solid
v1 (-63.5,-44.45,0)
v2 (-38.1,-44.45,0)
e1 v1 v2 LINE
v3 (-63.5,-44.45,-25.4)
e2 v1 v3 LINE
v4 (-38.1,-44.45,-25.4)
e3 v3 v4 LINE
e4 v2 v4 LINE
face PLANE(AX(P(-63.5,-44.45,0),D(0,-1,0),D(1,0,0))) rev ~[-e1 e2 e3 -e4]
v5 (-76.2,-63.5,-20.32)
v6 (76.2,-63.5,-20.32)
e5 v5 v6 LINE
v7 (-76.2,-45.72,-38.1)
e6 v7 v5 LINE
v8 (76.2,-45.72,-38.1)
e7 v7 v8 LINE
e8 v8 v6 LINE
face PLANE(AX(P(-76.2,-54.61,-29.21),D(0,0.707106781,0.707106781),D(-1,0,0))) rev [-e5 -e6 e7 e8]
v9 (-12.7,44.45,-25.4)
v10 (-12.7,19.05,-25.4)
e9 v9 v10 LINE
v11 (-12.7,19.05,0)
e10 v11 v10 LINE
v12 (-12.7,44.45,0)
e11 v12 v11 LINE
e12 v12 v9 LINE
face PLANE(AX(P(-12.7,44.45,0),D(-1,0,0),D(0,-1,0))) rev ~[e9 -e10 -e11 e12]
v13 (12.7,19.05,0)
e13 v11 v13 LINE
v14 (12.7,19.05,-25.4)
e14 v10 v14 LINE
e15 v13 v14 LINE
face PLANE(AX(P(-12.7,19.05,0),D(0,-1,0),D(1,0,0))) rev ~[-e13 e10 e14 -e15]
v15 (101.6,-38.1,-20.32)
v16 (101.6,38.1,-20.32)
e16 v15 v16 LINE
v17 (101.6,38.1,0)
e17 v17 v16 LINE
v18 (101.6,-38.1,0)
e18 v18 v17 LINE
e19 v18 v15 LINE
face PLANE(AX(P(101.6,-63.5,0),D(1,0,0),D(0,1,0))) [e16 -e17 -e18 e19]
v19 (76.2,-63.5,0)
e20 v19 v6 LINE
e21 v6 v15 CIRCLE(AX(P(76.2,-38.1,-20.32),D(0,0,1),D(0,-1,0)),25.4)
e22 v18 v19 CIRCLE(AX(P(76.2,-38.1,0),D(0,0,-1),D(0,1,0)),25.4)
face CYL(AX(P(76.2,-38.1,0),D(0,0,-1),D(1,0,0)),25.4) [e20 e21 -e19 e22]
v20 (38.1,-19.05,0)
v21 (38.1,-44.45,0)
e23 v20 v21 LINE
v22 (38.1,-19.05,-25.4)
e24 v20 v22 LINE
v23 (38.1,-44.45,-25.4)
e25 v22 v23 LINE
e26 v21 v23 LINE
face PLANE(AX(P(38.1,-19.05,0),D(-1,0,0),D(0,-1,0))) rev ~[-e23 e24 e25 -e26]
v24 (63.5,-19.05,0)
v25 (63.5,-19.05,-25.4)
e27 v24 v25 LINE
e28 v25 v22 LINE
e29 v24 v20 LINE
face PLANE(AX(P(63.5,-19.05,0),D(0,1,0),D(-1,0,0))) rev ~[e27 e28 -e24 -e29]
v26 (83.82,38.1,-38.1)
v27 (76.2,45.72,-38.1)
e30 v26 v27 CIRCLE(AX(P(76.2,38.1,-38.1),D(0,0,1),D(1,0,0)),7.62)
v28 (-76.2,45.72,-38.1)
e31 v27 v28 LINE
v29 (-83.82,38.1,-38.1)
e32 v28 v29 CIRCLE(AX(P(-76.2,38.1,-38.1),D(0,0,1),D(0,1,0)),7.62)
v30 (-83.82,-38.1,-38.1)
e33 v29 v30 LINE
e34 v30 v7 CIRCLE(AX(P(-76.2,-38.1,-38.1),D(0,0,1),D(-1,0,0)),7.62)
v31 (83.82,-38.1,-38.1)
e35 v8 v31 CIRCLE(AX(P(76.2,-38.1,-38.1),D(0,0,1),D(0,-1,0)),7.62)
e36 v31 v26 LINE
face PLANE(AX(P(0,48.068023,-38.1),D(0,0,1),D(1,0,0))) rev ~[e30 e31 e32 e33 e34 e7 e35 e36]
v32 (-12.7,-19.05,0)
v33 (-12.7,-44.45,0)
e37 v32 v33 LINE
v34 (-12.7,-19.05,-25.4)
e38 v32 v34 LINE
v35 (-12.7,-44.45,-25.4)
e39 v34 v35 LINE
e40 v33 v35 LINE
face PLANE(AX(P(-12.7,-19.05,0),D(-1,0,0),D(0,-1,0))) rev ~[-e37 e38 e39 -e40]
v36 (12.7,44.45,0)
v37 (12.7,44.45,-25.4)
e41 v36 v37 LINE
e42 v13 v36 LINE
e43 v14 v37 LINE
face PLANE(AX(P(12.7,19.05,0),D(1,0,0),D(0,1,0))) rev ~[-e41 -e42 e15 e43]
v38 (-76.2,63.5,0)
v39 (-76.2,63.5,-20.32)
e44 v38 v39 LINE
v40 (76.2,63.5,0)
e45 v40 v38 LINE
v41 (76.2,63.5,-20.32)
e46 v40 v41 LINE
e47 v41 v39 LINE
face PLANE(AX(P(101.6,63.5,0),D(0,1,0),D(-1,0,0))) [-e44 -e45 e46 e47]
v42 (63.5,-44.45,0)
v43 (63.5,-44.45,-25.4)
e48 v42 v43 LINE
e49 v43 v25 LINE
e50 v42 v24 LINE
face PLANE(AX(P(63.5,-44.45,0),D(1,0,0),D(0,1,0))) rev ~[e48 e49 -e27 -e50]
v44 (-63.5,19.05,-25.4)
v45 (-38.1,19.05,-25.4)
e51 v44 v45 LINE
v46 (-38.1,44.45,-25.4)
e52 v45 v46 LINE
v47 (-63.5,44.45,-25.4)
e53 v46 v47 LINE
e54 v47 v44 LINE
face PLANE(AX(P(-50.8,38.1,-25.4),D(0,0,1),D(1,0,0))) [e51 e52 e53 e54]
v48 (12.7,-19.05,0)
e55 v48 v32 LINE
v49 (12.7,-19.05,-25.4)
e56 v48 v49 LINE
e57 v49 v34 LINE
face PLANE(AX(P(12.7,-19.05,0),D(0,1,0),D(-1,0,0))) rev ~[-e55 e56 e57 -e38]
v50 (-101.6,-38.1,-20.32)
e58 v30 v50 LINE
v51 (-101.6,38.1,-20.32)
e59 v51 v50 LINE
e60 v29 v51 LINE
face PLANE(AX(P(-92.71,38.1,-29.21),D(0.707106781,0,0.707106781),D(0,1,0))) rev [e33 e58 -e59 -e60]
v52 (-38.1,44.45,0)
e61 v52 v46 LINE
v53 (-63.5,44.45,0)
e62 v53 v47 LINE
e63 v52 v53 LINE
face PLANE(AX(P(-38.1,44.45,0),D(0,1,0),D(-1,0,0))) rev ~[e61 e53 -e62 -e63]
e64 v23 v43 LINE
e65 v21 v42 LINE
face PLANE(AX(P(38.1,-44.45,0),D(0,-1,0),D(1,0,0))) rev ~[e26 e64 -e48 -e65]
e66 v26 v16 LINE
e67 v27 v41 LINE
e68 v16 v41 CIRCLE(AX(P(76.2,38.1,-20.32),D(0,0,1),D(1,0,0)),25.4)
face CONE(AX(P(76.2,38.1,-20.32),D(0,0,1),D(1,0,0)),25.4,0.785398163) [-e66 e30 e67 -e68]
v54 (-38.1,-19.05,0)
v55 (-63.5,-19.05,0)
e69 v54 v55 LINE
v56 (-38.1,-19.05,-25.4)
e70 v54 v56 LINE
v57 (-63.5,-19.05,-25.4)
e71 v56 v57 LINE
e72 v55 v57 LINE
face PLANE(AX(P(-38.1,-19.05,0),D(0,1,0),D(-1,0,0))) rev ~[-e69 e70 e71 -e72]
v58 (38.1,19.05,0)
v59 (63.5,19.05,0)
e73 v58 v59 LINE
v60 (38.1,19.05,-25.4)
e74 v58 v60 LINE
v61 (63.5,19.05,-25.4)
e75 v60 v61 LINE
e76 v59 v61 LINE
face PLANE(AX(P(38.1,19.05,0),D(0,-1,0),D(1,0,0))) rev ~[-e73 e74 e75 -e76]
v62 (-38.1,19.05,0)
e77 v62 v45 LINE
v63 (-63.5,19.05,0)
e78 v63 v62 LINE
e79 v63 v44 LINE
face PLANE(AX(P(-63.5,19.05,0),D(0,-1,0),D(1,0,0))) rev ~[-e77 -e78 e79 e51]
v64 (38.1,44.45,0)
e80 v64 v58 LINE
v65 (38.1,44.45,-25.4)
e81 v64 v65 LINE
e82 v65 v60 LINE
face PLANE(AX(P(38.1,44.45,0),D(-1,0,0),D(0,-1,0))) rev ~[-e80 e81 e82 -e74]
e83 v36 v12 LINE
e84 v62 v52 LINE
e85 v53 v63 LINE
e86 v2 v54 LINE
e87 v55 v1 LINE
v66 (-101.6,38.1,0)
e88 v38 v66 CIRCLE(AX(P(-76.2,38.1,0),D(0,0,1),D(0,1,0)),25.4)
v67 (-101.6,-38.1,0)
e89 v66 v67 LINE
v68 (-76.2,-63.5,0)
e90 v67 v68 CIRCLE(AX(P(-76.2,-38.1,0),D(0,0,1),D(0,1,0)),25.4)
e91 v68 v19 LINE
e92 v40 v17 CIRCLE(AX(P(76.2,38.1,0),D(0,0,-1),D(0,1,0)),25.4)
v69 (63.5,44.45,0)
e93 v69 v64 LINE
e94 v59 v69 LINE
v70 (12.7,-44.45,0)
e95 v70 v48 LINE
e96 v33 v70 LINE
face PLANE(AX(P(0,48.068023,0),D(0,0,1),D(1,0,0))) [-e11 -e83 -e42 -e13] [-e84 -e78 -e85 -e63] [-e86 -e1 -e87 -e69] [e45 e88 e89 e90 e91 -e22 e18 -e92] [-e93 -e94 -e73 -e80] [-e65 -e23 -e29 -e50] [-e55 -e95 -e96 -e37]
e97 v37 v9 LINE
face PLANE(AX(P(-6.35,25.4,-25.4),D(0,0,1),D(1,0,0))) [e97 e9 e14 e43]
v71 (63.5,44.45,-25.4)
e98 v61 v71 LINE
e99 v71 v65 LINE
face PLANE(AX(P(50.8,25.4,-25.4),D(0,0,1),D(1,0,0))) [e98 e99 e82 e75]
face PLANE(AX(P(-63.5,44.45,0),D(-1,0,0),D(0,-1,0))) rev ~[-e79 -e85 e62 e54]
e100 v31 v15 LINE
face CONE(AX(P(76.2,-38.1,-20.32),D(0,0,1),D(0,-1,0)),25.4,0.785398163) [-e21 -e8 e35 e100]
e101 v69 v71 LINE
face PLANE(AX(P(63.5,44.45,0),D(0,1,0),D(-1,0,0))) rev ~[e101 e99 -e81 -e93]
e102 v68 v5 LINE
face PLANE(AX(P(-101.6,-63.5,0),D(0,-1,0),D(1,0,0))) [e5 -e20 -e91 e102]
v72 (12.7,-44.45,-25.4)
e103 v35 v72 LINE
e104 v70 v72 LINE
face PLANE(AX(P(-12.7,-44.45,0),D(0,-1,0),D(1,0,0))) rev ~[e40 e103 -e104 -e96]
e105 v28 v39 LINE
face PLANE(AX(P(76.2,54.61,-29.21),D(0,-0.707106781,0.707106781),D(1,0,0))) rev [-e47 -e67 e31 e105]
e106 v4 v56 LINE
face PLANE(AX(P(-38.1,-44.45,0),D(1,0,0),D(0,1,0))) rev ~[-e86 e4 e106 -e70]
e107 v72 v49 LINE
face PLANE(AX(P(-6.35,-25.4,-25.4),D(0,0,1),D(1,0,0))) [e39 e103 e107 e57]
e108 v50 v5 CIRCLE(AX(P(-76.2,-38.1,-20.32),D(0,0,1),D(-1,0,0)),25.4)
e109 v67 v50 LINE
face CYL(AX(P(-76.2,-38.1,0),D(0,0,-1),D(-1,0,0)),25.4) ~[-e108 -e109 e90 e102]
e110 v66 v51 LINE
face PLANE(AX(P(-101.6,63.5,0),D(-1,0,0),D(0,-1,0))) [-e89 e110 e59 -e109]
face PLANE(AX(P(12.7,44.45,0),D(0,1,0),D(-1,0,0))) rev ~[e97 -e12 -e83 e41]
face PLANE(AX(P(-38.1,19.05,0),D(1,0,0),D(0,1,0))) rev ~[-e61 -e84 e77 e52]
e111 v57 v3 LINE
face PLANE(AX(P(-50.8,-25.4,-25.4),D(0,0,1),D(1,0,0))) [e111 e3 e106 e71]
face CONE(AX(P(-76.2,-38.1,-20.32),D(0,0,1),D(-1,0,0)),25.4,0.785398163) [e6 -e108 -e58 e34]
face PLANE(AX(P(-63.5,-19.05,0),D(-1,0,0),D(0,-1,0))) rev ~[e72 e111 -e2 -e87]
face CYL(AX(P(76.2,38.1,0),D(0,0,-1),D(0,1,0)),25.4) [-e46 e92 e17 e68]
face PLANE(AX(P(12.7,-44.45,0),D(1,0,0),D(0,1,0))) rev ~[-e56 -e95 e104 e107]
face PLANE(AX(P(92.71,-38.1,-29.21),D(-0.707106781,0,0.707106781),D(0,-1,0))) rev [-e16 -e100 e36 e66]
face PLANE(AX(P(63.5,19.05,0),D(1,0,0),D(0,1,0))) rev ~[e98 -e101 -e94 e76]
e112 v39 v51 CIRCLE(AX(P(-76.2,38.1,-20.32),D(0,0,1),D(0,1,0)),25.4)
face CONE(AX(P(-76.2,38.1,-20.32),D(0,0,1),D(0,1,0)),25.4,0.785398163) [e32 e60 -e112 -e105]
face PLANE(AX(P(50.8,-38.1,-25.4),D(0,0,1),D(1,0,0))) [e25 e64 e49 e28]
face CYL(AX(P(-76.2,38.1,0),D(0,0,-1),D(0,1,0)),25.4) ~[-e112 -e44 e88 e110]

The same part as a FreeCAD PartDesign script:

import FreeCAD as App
import Part
import Sketcher
from FreeCAD import Vector
Q = App.Units.Quantity


def edges_at(feature, points):
    """Names of the edges that pass closest to the given points."""
    edges = feature.Shape.Edges
    near = lambda p: min(range(len(edges)), key=lambda i: edges[i].distToShape(Part.Vertex(*p))[0])
    return sorted({f"Edge{near(p) + 1}" for p in points})


def add_polygon(sketch, points):
    """Adds a closed chain of lines whose ends are joined by coincident constraints."""
    first, n = sketch.GeometryCount, len(points)
    for a, b in zip(points, points[1:] + points[:1]):
        sketch.addGeometry(Part.LineSegment(App.Vector(*a, 0), App.Vector(*b, 0)), False)
    for i in range(n):
        sketch.addConstraint(Sketcher.Constraint("Coincident", first + i, 2, first + (i + 1) % n, 1))

doc = App.newDocument("Part")
body = doc.addObject("PartDesign::Body", "Body")

sketch1 = doc.addObject("Sketcher::SketchObject", "Sketch")
body.addObject(sketch1)
sketch1.AttachmentSupport = (doc.XY_Plane, [""])
sketch1.MapMode = "FlatFace"
add_polygon(sketch1, [(102, 64), (-102, 64), (-102, -64), (102, -64)])
sketch1.addConstraint([
    Sketcher.Constraint("Horizontal", 0),
    Sketcher.Constraint("Vertical", 1),
    Sketcher.Constraint("Horizontal", 2),
    Sketcher.Constraint("Vertical", 3),
    Sketcher.Constraint("Symmetric", 0, 2, 2, 2, -1, 1),
    Sketcher.Constraint("DistanceX", 0, 2, 0, 1, Q("8 in")),
    Sketcher.Constraint("DistanceY", 1, 2, 1, 1, Q("5 in")),
])
pad1 = doc.addObject("PartDesign::Pad", "Pad")
body.addObject(pad1)
pad1.Profile = sketch1
pad1.Length = Q("1.5 in")
pad1.Reversed = True

sketch2 = doc.addObject("Sketcher::SketchObject", "Sketch001")
body.addObject(sketch2)
sketch2.AttachmentSupport = (doc.XY_Plane, [""])
sketch2.MapMode = "FlatFace"
add_polygon(sketch2, [(-64, 44), (-64, 19), (-38, 19), (-38, 44)])
add_polygon(sketch2, [(-64, -19), (-64, -44), (-38, -44), (-38, -19)])
add_polygon(sketch2, [(-13, -19), (-13, -44), (13, -44), (13, -19)])
add_polygon(sketch2, [(-13, 19), (13, 19), (13, 44), (-13, 44)])
add_polygon(sketch2, [(64, -44), (64, -19), (38, -19), (38, -44)])
add_polygon(sketch2, [(64, 19), (64, 44), (38, 44), (38, 19)])
sketch2.addConstraint([
    Sketcher.Constraint("Vertical", 0),
    Sketcher.Constraint("Horizontal", 1),
    Sketcher.Constraint("Vertical", 2),
    Sketcher.Constraint("Horizontal", 3),
    Sketcher.Constraint("Vertical", 4),
    Sketcher.Constraint("Horizontal", 5),
    Sketcher.Constraint("Vertical", 6),
    Sketcher.Constraint("Horizontal", 7),
    Sketcher.Constraint("Vertical", 8),
    Sketcher.Constraint("Horizontal", 9),
    Sketcher.Constraint("Vertical", 10),
    Sketcher.Constraint("Horizontal", 11),
    Sketcher.Constraint("Horizontal", 12),
    Sketcher.Constraint("Vertical", 13),
    Sketcher.Constraint("Horizontal", 14),
    Sketcher.Constraint("Vertical", 15),
    Sketcher.Constraint("Vertical", 16),
    Sketcher.Constraint("Horizontal", 17),
    Sketcher.Constraint("Vertical", 18),
    Sketcher.Constraint("Horizontal", 19),
    Sketcher.Constraint("Vertical", 20),
    Sketcher.Constraint("Horizontal", 21),
    Sketcher.Constraint("Vertical", 22),
    Sketcher.Constraint("Horizontal", 23),
    Sketcher.Constraint("Symmetric", 11, 2, 12, 2, -1, 1),
    Sketcher.Constraint("Symmetric", 9, 2, 14, 2, -1, 1),
    Sketcher.Constraint("Symmetric", 0, 2, 16, 2, -1, 1),
    Sketcher.Constraint("Symmetric", 2, 2, 18, 2, -1, 1),
    Sketcher.Constraint("Symmetric", 4, 2, 20, 2, -1, 1),
    Sketcher.Constraint("Symmetric", 6, 2, 22, 2, -1, 1),
    Sketcher.Constraint("Symmetric", 7, 2, 16, 2, -2),
    Sketcher.Constraint("Symmetric", 5, 2, 18, 2, -2),
    Sketcher.Constraint("Horizontal", 5, 2, 8, 2),
    Sketcher.Constraint("Horizontal", 7, 2, 10, 2),
    Sketcher.Constraint("Vertical", 10, 2, 12, 2),
    Sketcher.Constraint("Equal", 7, 9),
    Sketcher.Constraint("Equal", 23, 0),
    Sketcher.Constraint("DistanceX", 1, 1, 1, 2, Q("1 in")),
    Sketcher.Constraint("DistanceX", 5, 2, 8, 2, Q("1 in")),
    Sketcher.Constraint("DistanceY", 4, 2, 0, 2, Q("2.5 in")),
])
pocket1 = doc.addObject("PartDesign::Pocket", "Pocket")
body.addObject(pocket1)
pocket1.Profile = sketch2
pocket1.Length = Q("1 in")
doc.recompute()

fillet = doc.addObject("PartDesign::Fillet", "Fillet")
body.addObject(fillet)
fillet.Base = (pocket1, edges_at(pocket1, [
    (-101.6, -63.5, -19.05),
    (101.6, -63.5, -19.05),
    (101.6, 63.5, -19.05),
    (-101.6, 63.5, -19.05),
]))
fillet.Radius = Q("1 in")
doc.recompute()

chamfer = doc.addObject("PartDesign::Chamfer", "Chamfer")
body.addObject(chamfer)
chamfer.Base = (fillet, edges_at(fillet, [(0, -63.5, -38.1)]))
chamfer.Size = Q("0.7 in")

doc.recompute()
